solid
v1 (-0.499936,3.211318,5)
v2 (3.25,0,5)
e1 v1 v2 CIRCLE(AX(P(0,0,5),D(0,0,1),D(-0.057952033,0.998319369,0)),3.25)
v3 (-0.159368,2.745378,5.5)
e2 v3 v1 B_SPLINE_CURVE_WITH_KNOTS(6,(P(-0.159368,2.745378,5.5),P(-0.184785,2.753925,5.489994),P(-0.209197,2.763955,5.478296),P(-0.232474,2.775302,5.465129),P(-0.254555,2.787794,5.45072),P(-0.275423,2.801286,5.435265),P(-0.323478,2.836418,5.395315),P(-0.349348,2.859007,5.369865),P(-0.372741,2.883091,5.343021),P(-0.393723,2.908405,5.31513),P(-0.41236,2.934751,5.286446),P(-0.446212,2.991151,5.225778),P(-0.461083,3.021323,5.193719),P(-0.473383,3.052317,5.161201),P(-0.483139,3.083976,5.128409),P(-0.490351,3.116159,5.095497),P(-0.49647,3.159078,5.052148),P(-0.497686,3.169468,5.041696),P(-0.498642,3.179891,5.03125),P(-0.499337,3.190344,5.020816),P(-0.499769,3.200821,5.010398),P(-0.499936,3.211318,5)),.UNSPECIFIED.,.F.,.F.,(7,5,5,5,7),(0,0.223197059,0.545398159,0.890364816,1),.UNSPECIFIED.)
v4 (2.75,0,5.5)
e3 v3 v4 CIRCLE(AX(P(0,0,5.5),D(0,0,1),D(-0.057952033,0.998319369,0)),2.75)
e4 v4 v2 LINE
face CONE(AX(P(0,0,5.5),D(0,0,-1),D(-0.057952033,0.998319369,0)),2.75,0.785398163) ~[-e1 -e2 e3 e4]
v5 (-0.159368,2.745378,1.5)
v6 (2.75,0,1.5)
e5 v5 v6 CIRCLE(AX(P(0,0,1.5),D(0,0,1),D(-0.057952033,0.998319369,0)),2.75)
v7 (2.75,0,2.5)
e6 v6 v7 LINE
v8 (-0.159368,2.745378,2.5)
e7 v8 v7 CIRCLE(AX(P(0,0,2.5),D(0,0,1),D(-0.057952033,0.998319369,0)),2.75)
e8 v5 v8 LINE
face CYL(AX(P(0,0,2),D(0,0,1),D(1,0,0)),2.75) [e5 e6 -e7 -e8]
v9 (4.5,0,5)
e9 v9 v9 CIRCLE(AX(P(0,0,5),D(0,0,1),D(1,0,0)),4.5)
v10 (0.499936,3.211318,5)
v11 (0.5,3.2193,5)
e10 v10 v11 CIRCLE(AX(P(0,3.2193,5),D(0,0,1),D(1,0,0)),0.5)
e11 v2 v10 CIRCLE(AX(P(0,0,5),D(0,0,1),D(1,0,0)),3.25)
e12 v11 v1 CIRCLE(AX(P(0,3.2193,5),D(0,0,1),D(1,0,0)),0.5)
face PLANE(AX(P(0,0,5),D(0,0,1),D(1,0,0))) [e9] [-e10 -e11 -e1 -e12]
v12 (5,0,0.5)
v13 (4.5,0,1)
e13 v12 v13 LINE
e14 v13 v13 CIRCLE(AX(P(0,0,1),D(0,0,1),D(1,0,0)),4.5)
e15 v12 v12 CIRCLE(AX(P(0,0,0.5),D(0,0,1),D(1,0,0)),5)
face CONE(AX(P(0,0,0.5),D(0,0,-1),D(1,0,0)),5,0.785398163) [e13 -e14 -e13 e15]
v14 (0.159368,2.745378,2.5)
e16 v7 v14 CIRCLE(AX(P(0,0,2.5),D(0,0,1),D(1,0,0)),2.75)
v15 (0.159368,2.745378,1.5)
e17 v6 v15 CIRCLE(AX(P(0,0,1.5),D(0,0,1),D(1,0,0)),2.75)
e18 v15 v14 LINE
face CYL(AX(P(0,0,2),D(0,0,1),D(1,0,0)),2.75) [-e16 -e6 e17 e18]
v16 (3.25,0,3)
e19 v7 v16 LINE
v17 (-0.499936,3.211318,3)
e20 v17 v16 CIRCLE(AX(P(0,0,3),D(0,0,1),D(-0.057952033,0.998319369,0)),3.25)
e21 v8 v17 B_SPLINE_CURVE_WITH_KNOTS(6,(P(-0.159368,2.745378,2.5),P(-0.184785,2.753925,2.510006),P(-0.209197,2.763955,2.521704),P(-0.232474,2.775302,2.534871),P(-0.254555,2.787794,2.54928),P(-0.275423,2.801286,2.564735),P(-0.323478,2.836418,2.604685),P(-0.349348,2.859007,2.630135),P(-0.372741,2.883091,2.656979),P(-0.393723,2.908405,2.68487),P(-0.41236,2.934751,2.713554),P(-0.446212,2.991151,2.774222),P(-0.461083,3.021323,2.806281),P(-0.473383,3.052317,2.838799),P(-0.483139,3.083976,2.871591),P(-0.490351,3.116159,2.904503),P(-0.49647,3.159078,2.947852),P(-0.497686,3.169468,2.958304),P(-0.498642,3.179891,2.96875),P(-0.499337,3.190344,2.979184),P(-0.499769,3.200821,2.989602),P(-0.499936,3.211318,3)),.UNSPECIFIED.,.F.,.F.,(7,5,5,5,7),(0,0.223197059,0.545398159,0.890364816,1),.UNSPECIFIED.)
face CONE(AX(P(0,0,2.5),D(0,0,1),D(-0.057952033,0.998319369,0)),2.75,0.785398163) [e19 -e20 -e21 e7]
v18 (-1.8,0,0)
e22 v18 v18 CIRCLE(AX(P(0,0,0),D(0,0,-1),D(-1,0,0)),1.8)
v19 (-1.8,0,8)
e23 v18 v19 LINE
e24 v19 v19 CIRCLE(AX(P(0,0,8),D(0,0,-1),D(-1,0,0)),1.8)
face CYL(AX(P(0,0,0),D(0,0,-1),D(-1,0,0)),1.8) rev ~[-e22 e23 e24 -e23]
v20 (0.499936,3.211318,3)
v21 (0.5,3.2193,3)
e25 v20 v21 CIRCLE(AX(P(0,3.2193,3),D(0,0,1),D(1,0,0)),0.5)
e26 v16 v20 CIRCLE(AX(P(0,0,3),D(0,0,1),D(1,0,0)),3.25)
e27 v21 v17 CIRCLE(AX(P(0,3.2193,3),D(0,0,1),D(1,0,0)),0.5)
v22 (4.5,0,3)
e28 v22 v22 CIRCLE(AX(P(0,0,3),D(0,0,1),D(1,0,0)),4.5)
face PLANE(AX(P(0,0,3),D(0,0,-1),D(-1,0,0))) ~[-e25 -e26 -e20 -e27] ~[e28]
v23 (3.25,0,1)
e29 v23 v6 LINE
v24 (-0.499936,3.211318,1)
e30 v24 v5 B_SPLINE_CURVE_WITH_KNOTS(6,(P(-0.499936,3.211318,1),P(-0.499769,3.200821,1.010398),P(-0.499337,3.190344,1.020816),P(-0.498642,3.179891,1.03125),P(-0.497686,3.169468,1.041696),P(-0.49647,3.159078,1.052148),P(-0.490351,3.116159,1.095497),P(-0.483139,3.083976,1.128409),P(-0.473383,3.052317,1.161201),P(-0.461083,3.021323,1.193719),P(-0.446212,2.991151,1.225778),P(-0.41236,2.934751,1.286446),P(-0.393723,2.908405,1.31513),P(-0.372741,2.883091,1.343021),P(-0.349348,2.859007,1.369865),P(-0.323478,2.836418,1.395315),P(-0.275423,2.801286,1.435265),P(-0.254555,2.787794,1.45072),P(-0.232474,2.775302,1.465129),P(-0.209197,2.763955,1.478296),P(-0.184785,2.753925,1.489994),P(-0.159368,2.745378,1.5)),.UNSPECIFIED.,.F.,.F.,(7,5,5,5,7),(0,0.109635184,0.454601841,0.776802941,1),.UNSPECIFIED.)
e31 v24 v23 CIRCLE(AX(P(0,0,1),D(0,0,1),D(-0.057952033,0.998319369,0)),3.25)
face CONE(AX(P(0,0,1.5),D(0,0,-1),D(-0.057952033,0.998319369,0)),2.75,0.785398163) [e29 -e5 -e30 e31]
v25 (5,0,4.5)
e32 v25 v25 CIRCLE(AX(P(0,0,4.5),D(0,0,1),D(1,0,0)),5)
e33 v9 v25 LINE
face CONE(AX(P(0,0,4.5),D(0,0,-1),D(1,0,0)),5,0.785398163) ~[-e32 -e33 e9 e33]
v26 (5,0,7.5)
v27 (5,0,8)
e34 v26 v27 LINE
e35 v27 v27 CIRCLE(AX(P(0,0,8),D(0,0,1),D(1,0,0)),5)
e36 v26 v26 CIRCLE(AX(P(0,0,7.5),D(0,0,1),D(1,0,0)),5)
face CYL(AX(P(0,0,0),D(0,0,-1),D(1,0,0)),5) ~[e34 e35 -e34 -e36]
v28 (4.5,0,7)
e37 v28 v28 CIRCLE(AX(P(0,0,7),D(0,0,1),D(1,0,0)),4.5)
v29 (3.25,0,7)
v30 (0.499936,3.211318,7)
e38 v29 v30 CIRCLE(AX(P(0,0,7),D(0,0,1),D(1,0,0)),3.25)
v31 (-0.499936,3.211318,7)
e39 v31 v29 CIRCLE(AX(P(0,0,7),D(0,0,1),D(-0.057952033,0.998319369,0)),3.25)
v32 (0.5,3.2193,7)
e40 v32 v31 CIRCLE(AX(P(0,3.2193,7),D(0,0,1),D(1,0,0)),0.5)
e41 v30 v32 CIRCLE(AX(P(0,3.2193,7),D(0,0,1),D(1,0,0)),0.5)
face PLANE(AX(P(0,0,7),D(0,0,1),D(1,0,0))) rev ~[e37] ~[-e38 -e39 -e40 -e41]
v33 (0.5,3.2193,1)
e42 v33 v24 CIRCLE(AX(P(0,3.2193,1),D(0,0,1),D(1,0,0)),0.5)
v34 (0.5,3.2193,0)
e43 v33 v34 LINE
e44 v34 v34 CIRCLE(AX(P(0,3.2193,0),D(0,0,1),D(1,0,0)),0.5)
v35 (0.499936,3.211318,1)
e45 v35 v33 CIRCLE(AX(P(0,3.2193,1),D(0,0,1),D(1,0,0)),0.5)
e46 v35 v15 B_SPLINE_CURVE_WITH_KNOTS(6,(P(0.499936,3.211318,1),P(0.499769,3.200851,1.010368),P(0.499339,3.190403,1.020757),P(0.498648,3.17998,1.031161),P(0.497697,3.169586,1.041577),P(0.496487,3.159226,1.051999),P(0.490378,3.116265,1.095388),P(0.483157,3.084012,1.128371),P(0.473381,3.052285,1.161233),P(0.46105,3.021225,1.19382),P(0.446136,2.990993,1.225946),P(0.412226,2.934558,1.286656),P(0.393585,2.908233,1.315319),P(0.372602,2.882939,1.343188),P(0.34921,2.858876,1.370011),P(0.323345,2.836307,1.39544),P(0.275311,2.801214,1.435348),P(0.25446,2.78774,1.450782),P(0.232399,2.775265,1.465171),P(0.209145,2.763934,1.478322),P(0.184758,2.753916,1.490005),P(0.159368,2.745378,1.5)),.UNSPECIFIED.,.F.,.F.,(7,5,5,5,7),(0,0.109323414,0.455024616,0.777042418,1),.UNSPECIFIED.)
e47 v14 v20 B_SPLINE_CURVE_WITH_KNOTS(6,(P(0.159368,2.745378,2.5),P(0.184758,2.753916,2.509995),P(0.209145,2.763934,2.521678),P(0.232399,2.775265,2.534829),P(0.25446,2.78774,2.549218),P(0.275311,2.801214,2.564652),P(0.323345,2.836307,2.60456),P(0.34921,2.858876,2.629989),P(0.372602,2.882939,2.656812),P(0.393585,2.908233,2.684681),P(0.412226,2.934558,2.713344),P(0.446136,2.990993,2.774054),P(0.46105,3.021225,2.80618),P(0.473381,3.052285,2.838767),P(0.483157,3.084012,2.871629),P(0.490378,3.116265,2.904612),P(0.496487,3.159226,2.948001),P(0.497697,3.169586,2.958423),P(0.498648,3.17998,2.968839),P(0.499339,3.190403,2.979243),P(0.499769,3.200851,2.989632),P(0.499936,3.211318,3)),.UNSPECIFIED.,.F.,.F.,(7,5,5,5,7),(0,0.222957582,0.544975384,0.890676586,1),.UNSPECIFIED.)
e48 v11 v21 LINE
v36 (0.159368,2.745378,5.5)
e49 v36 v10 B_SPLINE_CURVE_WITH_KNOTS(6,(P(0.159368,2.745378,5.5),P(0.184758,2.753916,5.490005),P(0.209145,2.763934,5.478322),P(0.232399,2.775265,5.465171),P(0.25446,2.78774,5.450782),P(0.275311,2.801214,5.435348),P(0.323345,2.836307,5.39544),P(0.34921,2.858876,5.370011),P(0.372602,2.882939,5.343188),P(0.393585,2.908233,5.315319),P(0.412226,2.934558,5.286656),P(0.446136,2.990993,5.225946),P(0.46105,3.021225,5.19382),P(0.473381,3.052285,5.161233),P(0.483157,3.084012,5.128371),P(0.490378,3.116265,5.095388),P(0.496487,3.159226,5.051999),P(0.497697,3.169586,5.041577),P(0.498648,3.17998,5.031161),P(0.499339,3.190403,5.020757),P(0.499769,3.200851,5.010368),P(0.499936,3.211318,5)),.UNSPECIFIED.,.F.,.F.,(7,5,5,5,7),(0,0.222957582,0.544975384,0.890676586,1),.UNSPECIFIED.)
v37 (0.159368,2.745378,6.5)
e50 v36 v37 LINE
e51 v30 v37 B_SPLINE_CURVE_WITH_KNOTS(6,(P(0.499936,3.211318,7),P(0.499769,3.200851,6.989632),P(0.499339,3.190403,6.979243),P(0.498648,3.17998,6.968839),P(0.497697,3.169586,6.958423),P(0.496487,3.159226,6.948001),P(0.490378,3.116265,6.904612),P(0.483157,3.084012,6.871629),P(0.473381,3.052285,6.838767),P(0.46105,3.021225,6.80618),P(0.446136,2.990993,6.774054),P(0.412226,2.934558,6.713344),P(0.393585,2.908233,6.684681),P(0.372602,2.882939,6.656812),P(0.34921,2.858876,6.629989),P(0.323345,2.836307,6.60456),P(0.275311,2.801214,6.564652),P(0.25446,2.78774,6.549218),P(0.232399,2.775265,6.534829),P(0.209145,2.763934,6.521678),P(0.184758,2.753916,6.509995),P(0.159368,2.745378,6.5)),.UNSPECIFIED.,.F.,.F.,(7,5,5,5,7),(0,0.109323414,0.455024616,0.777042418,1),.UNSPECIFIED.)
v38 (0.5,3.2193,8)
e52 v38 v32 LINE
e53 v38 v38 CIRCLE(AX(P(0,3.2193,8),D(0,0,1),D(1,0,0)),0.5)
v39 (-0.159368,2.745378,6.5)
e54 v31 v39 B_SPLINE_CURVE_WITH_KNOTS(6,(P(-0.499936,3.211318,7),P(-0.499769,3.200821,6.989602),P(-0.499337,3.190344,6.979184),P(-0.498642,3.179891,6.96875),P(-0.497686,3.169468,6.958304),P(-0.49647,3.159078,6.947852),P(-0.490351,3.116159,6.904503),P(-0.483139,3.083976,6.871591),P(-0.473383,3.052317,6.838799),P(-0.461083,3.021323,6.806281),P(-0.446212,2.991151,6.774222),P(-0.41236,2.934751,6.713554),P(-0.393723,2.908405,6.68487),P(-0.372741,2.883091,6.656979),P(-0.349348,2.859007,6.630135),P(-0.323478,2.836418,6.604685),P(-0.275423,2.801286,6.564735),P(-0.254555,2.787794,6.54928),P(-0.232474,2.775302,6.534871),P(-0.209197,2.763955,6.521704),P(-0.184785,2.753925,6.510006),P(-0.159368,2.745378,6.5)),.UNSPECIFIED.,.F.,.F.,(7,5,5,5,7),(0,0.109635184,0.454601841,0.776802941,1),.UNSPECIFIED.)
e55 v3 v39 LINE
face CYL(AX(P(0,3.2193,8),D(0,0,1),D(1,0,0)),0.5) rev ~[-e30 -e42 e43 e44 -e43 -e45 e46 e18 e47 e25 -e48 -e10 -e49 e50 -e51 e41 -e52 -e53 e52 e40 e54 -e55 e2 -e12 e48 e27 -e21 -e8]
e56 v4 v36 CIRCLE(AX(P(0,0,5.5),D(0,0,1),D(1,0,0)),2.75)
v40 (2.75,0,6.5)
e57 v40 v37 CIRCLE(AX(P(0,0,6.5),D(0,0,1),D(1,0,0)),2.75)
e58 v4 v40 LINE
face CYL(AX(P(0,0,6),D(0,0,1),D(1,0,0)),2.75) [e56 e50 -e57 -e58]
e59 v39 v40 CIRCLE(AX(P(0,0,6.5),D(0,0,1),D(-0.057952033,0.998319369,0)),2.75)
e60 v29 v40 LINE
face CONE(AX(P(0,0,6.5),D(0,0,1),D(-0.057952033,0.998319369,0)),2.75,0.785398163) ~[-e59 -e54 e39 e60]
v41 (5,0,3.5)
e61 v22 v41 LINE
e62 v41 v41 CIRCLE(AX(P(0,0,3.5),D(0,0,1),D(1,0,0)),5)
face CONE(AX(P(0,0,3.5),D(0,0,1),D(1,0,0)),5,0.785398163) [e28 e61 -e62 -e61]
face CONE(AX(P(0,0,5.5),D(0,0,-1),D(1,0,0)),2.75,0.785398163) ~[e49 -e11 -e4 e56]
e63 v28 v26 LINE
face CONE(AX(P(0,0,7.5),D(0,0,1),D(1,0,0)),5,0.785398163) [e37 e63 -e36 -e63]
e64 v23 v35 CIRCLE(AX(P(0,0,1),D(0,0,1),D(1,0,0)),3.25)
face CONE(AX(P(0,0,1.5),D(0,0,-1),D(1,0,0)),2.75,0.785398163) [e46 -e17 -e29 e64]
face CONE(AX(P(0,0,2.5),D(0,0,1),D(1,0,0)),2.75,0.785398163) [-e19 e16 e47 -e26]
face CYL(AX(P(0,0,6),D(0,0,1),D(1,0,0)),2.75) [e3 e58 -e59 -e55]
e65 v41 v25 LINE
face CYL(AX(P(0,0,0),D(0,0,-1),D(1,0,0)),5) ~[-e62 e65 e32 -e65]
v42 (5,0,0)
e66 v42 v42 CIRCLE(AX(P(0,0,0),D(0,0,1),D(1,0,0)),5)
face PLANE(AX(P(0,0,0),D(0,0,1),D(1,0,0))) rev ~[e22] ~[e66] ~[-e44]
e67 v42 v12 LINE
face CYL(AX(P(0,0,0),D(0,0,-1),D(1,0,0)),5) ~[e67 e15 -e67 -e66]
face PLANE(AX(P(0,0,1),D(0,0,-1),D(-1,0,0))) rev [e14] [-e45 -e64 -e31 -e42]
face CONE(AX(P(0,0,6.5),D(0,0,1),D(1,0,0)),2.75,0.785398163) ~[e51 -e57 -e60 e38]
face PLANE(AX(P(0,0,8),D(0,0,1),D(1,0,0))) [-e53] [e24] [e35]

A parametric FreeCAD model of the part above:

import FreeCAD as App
import Part
import Sketcher
from FreeCAD import Vector


def edges_at(feature, points):
    """Names of the edges that pass closest to the given points."""
    edges = feature.Shape.Edges
    near = lambda p: min(range(len(edges)), key=lambda i: edges[i].distToShape(Part.Vertex(*p))[0])
    return sorted({f"Edge{near(p) + 1}" for p in points})

doc = App.newDocument("Part")
body = doc.addObject("PartDesign::Body", "Body")

# Sketch on XY plane
sketch1 = body.newObject("Sketcher::SketchObject", "Sketch")
sketch1.AttachmentSupport = (doc.getObject("XY_Plane"), [""])
sketch1.MapMode = "FlatFace"
sketch1.addGeometry(Part.Circle(Vector(0, 0, 0), Vector(0, 0, 1), 5), False)
sketch1.addConstraint([
    Sketcher.Constraint("Coincident", 0, 3, -1, 1),
    Sketcher.Constraint("Diameter", 0, 10.0),
])
pad1 = body.newObject("PartDesign::Pad", "Pad")
pad1.Profile = sketch1
pad1.Length = 8

# Sketch on XY plane
sketch2 = body.newObject("Sketcher::SketchObject", "Sketch001")
sketch2.AttachmentSupport = (doc.getObject("XY_Plane"), [""])
sketch2.MapMode = "FlatFace"
sketch2.AttachmentOffset = App.Placement(Vector(0, 0, 6), App.Rotation())
sketch2.addGeometry([
    Part.Circle(Vector(0, 0, 0), Vector(0, 0, 1), 5),
    Part.Circle(Vector(0, 0, 0), Vector(0, 0, 1), 2.8),
], False)
sketch2.addConstraint([
    Sketcher.Constraint("Coincident", 0, 3, -1, 1),
    Sketcher.Constraint("Coincident", 1, 3, -1, 1),
    Sketcher.Constraint("Diameter", 0, 10.0),
    Sketcher.Constraint("Diameter", 1, 5.5),
])
pocket1 = body.newObject("PartDesign::Pocket", "Pocket")
pocket1.Profile = sketch2
pocket1.Length = 2
pocket1.Midplane = True
doc.recompute()

datumplane = body.newObject("PartDesign::Plane", "DatumPlane")
datumplane.AttachmentSupport = (doc.getObject("XY_Plane"), [""])
datumplane.MapMode = "FlatFace"
datumplane.AttachmentOffset = App.Placement(Vector(0, 0, 4), App.Rotation())
mirrored = body.newObject("PartDesign::Mirrored", "Mirrored")
mirrored.Originals = [pocket1]
mirrored.MirrorPlane = (datumplane, [""])
body.Tip = mirrored

# Sketch on XY plane
sketch3 = body.newObject("Sketcher::SketchObject", "Sketch002")
sketch3.AttachmentSupport = (doc.getObject("XY_Plane"), [""])
sketch3.MapMode = "FlatFace"
sketch3.addGeometry(Part.Circle(Vector(0, 0, 0), Vector(0, 0, 1), 1.8), False)
sketch3.addConstraint([
    Sketcher.Constraint("Coincident", 0, 3, -1, 1),
    Sketcher.Constraint("Diameter", 0, 3.6),
])
pocket2 = body.newObject("PartDesign::Pocket", "Pocket001")
pocket2.Profile = sketch3
pocket2.Length = 10
pocket2.Reversed = True

# Sketch on XY plane
sketch4 = body.newObject("Sketcher::SketchObject", "Sketch003")
sketch4.AttachmentSupport = (doc.getObject("XY_Plane"), [""])
sketch4.MapMode = "FlatFace"
sketch4.AttachmentOffset = App.Placement(Vector(0, 0, 8), App.Rotation())
sketch4.addGeometry(Part.Circle(Vector(0, 3.2, 0), Vector(0, 0, 1), 0.5), False)
sketch4.addConstraint([
    Sketcher.Constraint("PointOnObject", 0, 3, -2),
    Sketcher.Constraint("Diameter", 0, 1.0),
    Sketcher.Constraint("DistanceY", -1, 1, 0, 3, 3.2193),
])
pocket3 = body.newObject("PartDesign::Pocket", "Pocket002")
pocket3.Profile = sketch4
pocket3.Length = 10
doc.recompute()

chamfer = body.newObject("PartDesign::Chamfer", "Chamfer")
chamfer.Base = (pocket3, edges_at(pocket3, [
    (2, 1.887, 7),
    (-1.887, -2, 7),
    (2, 1.887, 5),
    (-1.887, -2, 5),
    (2, 1.887, 3),
    (-1.887, -2, 3),
    (2, 1.887, 1),
    (-1.887, -2, 1),
    (-5, 0, 7),
    (-5, 0, 5),
    (-5, 0, 1),
    (-5, 0, 3),
]))
chamfer.Size = 0.5

doc.recompute()
